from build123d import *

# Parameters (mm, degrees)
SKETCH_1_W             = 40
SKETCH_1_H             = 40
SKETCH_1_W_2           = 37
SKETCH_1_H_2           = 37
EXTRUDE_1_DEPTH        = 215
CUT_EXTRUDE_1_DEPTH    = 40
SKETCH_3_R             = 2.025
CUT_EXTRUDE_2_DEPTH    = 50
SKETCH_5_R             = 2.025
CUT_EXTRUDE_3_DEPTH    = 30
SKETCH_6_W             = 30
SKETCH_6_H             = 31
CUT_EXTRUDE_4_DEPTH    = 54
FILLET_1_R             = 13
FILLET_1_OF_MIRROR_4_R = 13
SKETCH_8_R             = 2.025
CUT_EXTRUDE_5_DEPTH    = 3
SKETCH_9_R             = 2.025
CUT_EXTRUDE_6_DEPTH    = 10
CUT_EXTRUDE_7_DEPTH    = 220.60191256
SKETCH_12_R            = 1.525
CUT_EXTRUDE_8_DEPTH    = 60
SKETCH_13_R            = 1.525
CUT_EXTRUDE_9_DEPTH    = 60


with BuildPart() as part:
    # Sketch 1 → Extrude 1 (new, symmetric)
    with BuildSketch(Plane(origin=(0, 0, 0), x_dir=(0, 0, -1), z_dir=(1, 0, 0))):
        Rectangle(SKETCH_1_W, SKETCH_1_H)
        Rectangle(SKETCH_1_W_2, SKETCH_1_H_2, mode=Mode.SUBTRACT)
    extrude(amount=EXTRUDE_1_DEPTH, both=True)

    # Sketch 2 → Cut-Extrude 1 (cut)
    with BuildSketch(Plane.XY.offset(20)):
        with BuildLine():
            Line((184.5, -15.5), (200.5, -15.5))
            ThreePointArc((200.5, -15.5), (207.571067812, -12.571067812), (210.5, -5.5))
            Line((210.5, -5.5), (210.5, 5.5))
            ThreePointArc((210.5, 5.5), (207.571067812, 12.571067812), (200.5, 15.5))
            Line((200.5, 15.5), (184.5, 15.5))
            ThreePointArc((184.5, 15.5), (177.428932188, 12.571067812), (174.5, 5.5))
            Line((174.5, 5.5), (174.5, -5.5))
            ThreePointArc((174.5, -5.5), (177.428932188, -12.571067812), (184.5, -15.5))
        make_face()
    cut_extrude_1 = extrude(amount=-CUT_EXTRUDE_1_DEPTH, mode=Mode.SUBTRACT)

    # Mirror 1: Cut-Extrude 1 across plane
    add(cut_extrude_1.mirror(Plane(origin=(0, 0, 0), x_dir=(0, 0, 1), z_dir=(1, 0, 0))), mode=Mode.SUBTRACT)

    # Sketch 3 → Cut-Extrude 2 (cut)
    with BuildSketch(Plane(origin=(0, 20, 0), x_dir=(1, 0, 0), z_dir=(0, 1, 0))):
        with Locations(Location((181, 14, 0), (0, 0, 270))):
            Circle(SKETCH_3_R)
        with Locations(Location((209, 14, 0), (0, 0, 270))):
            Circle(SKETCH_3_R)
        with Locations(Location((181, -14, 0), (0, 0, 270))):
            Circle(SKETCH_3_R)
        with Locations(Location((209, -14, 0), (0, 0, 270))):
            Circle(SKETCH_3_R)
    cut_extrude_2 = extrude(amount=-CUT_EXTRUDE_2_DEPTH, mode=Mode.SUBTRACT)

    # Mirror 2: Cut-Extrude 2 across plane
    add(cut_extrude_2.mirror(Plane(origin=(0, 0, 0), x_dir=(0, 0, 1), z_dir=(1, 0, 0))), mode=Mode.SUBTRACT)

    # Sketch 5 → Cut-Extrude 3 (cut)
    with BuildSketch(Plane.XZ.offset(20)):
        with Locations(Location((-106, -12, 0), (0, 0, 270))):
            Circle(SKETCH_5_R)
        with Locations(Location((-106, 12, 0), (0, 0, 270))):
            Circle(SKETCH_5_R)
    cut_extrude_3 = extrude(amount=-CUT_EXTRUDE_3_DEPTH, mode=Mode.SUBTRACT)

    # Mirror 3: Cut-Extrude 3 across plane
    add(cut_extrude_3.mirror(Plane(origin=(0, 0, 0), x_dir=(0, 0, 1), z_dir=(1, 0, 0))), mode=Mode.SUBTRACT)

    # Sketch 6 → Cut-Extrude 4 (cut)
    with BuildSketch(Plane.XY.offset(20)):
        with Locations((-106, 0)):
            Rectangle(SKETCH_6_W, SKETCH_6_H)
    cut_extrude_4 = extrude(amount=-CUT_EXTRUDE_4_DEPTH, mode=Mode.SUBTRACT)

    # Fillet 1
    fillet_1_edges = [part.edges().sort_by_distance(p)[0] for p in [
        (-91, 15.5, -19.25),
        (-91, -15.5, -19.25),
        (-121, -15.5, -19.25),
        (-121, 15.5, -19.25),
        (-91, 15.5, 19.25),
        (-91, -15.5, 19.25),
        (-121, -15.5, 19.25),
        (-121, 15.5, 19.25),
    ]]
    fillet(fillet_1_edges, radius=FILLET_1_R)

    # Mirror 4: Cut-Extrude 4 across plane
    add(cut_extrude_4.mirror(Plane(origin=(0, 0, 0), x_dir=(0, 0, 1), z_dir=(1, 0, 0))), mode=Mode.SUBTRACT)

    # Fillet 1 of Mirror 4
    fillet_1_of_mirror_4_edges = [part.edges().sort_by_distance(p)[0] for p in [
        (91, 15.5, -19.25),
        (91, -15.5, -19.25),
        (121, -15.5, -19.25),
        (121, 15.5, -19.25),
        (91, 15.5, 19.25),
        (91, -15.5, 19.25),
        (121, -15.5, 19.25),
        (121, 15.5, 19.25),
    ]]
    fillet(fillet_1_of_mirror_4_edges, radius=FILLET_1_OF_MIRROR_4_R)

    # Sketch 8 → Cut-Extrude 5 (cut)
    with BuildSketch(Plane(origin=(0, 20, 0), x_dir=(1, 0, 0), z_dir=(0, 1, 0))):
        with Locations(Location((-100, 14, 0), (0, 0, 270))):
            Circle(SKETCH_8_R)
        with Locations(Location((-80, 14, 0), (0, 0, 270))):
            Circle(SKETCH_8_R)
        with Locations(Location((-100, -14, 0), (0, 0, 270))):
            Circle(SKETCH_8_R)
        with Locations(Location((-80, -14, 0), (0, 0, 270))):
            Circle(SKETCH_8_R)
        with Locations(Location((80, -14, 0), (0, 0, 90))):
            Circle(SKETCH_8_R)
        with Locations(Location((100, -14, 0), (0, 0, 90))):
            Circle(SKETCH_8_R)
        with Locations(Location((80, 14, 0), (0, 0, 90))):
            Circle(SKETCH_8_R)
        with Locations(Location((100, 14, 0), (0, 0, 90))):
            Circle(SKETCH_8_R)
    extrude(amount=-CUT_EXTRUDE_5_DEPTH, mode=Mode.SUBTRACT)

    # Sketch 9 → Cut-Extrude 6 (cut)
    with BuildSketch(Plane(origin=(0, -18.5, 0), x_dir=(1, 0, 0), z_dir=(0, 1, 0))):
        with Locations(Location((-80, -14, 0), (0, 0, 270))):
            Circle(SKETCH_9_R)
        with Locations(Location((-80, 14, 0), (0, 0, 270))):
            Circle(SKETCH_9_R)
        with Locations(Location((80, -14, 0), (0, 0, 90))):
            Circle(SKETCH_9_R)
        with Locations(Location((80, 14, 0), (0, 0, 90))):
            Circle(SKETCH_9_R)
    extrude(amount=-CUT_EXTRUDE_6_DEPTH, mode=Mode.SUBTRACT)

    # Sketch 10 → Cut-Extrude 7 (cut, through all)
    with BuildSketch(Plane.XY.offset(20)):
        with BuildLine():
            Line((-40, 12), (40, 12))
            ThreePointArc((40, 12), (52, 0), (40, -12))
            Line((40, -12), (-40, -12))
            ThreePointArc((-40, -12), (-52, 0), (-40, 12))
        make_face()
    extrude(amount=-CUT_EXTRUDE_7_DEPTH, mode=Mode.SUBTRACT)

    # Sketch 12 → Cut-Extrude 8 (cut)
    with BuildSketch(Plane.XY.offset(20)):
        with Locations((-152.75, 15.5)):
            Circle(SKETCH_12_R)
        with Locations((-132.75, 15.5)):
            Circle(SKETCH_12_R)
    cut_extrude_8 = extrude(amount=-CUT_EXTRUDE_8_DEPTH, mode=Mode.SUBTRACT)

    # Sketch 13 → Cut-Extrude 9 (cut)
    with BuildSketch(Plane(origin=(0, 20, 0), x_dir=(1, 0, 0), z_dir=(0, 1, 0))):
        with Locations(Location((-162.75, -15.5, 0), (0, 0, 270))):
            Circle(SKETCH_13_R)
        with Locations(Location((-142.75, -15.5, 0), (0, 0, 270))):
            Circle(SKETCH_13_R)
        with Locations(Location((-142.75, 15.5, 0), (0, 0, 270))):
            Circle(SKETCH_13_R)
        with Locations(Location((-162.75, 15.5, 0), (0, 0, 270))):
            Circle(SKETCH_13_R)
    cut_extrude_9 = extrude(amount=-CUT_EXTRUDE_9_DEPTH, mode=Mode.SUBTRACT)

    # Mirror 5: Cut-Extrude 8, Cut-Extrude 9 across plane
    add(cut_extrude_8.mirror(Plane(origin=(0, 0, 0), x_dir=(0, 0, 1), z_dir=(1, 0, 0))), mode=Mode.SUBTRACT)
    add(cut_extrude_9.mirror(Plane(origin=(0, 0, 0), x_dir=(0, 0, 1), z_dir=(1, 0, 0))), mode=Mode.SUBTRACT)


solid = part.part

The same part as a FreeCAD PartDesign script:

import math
import FreeCAD as App
import Part
import Sketcher


def edges_at(feature, points):
    """Names of the edges that pass closest to the given points."""
    edges = feature.Shape.Edges
    near = lambda p: min(range(len(edges)), key=lambda i: edges[i].distToShape(Part.Vertex(*p))[0])
    return sorted({f"Edge{near(p) + 1}" for p in points})

doc = App.newDocument("Part")
body = doc.addObject("PartDesign::Body", "Body")

sketch1 = body.newObject("Sketcher::SketchObject", "Sketch")
sketch1.AttachmentSupport = (doc.getObject("YZ_Plane"), [""])
sketch1.MapMode = "FlatFace"
sketch1.addGeometry(Part.LineSegment(App.Vector(20, 20, 0), App.Vector(-20, 20, 0)), False)
sketch1.addGeometry(Part.LineSegment(App.Vector(-20, 20, 0), App.Vector(-20, -20, 0)), False)
sketch1.addGeometry(Part.LineSegment(App.Vector(-20, -20, 0), App.Vector(20, -20, 0)), False)
sketch1.addGeometry(Part.LineSegment(App.Vector(20, -20, 0), App.Vector(20, 20, 0)), False)
sketch1.addGeometry(Part.LineSegment(App.Vector(-18, -18, 0), App.Vector(-18, 18, 0)), False)
sketch1.addGeometry(Part.LineSegment(App.Vector(-18, 18, 0), App.Vector(18, 18, 0)), False)
sketch1.addGeometry(Part.LineSegment(App.Vector(18, 18, 0), App.Vector(18, -18, 0)), False)
sketch1.addGeometry(Part.LineSegment(App.Vector(18, -18, 0), App.Vector(-18, -18, 0)), False)
sketch1.addConstraint(Sketcher.Constraint("Coincident", 0, 2, 1, 1))
sketch1.addConstraint(Sketcher.Constraint("Coincident", 1, 2, 2, 1))
sketch1.addConstraint(Sketcher.Constraint("Coincident", 2, 2, 3, 1))
sketch1.addConstraint(Sketcher.Constraint("Coincident", 3, 2, 0, 1))
sketch1.addConstraint(Sketcher.Constraint("Coincident", 4, 2, 5, 1))
sketch1.addConstraint(Sketcher.Constraint("Coincident", 5, 2, 6, 1))
sketch1.addConstraint(Sketcher.Constraint("Coincident", 6, 2, 7, 1))
sketch1.addConstraint(Sketcher.Constraint("Coincident", 7, 2, 4, 1))
sketch1.addConstraint(Sketcher.Constraint("Horizontal", 0))
sketch1.addConstraint(Sketcher.Constraint("Vertical", 1))
sketch1.addConstraint(Sketcher.Constraint("Horizontal", 2))
sketch1.addConstraint(Sketcher.Constraint("Vertical", 3))
sketch1.addConstraint(Sketcher.Constraint("Vertical", 4))
sketch1.addConstraint(Sketcher.Constraint("Horizontal", 5))
sketch1.addConstraint(Sketcher.Constraint("Vertical", 6))
sketch1.addConstraint(Sketcher.Constraint("Horizontal", 7))
sketch1.addConstraint(Sketcher.Constraint("Symmetric", 0, 2, 2, 2, -1, 1))
sketch1.addConstraint(Sketcher.Constraint("Symmetric", 4, 2, 6, 2, -1, 1))
sketch1.addConstraint(Sketcher.Constraint("Equal", 2, 1))
sketch1.addConstraint(Sketcher.Constraint("Equal", 7, 4))
sketch1.addConstraint(Sketcher.Constraint("DistanceX", 0, 2, 0, 1, 40.0))
sketch1.addConstraint(Sketcher.Constraint("DistanceX", 5, 1, 5, 2, 37.0))
pad1 = body.newObject("PartDesign::Pad", "Pad")
pad1.Profile = sketch1
pad1.Length = 430
pad1.Midplane = True

sketch2 = body.newObject("Sketcher::SketchObject", "Sketch001")
sketch2.AttachmentSupport = (doc.getObject("XY_Plane"), [""])
sketch2.MapMode = "FlatFace"
sketch2.AttachmentOffset = App.Placement(App.Vector(0, 0, 20), App.Rotation())
sketch2.addGeometry(Part.LineSegment(App.Vector(184, -16, 0), App.Vector(200, -16, 0)), False)
sketch2.addGeometry(Part.ArcOfCircle(Part.Circle(App.Vector(200, -6, 0), App.Vector(0, 0, 1), 10), math.radians(-90), math.radians(0)), False)
sketch2.addGeometry(Part.LineSegment(App.Vector(210, -6, 0), App.Vector(210, 6, 0)), False)
sketch2.addGeometry(Part.ArcOfCircle(Part.Circle(App.Vector(200, 6, 0), App.Vector(0, 0, 1), 10), math.radians(0), math.radians(90)), False)
sketch2.addGeometry(Part.LineSegment(App.Vector(200, 16, 0), App.Vector(184, 16, 0)), False)
sketch2.addGeometry(Part.ArcOfCircle(Part.Circle(App.Vector(184, 6, 0), App.Vector(0, 0, 1), 10), math.radians(90), math.radians(180)), False)
sketch2.addGeometry(Part.LineSegment(App.Vector(174, 6, 0), App.Vector(174, -6, 0)), False)
sketch2.addGeometry(Part.ArcOfCircle(Part.Circle(App.Vector(184, -6, 0), App.Vector(0, 0, 1), 10), math.radians(180), math.radians(270)), False)
sketch2.addConstraint(Sketcher.Constraint("Tangent", 0, 2, 1, 1))
sketch2.addConstraint(Sketcher.Constraint("Tangent", 1, 2, 2, 1))
sketch2.addConstraint(Sketcher.Constraint("Tangent", 2, 2, 3, 1))
sketch2.addConstraint(Sketcher.Constraint("Tangent", 3, 2, 4, 1))
sketch2.addConstraint(Sketcher.Constraint("Tangent", 4, 2, 5, 1))
sketch2.addConstraint(Sketcher.Constraint("Tangent", 5, 2, 6, 1))
sketch2.addConstraint(Sketcher.Constraint("Tangent", 6, 2, 7, 1))
sketch2.addConstraint(Sketcher.Constraint("Tangent", 7, 2, 0, 1))
sketch2.addConstraint(Sketcher.Constraint("Horizontal", 0))
sketch2.addConstraint(Sketcher.Constraint("Vertical", 2))
sketch2.addConstraint(Sketcher.Constraint("Horizontal", 4))
sketch2.addConstraint(Sketcher.Constraint("Vertical", 6))
sketch2.addConstraint(Sketcher.Constraint("Equal", 1, 3))
sketch2.addConstraint(Sketcher.Constraint("Equal", 3, 5))
sketch2.addConstraint(Sketcher.Constraint("Equal", 5, 7))
sketch2.addConstraint(Sketcher.Constraint("Radius", 1, 10.0))
sketch2.addConstraint(Sketcher.Constraint("DistanceX", 0, 1, 0, 2, 16.0))
sketch2.addConstraint(Sketcher.Constraint("DistanceY", 2, 1, 2, 2, 11.0))
sketch2.addConstraint(Sketcher.Constraint("DistanceX", -1, 1, 1, 3, 200.5))
sketch2.addConstraint(Sketcher.Constraint("DistanceY", 1, 3, -1, 1, 5.5))
pocket1 = body.newObject("PartDesign::Pocket", "Pocket")
pocket1.Profile = sketch2
pocket1.Length = 40
doc.recompute()

mirrored = body.newObject("PartDesign::Mirrored", "Mirrored")
mirrored.Originals = [pocket1]
mirrored.MirrorPlane = (doc.getObject("YZ_Plane"), [""])
body.Tip = mirrored

sketch3 = body.newObject("Sketcher::SketchObject", "Sketch002")
sketch3.AttachmentSupport = (doc.getObject("XZ_Plane"), [""])
sketch3.MapMode = "FlatFace"
sketch3.AttachmentOffset = App.Placement(App.Vector(0, 0, -20), App.Rotation())
sketch3.addGeometry(Part.Circle(App.Vector(181, -14, 0), App.Vector(0, 0, 1), 2), False)
sketch3.addGeometry(Part.Circle(App.Vector(209, -14, 0), App.Vector(0, 0, 1), 2), False)
sketch3.addGeometry(Part.Circle(App.Vector(181, 14, 0), App.Vector(0, 0, 1), 2), False)
sketch3.addGeometry(Part.Circle(App.Vector(209, 14, 0), App.Vector(0, 0, 1), 2), False)
sketch3.addConstraint(Sketcher.Constraint("Equal", 0, 1))
sketch3.addConstraint(Sketcher.Constraint("Equal", 1, 2))
sketch3.addConstraint(Sketcher.Constraint("Equal", 2, 3))
sketch3.addConstraint(Sketcher.Constraint("Symmetric", 0, 3, 2, 3, -1))
sketch3.addConstraint(Sketcher.Constraint("Symmetric", 1, 3, 3, 3, -1))
sketch3.addConstraint(Sketcher.Constraint("Horizontal", 0, 3, 1, 3))
sketch3.addConstraint(Sketcher.Constraint("Diameter", 0, 4.05))
sketch3.addConstraint(Sketcher.Constraint("DistanceX", -1, 1, 0, 3, 181.0))
sketch3.addConstraint(Sketcher.Constraint("DistanceY", 0, 3, -1, 1, 14.0))
sketch3.addConstraint(Sketcher.Constraint("DistanceX", -1, 1, 1, 3, 209.0))
pocket2 = body.newObject("PartDesign::Pocket", "Pocket001")
pocket2.Profile = sketch3
pocket2.Length = 50
pocket2.Reversed = True
doc.recompute()

mirrored2 = body.newObject("PartDesign::Mirrored", "Mirrored001")
mirrored2.Originals = [pocket2]
mirrored2.MirrorPlane = (doc.getObject("YZ_Plane"), [""])
body.Tip = mirrored2

sketch4 = body.newObject("Sketcher::SketchObject", "Sketch003")
sketch4.AttachmentSupport = (doc.getObject("XZ_Plane"), [""])
sketch4.MapMode = "FlatFace"
sketch4.AttachmentOffset = App.Placement(App.Vector(0, 0, 20), App.Rotation())
sketch4.addGeometry(Part.Circle(App.Vector(-106, -12, 0), App.Vector(0, 0, 1), 2), False)
sketch4.addGeometry(Part.Circle(App.Vector(-106, 12, 0), App.Vector(0, 0, 1), 2), False)
sketch4.addConstraint(Sketcher.Constraint("Equal", 0, 1))
sketch4.addConstraint(Sketcher.Constraint("Symmetric", 0, 3, 1, 3, -1))
sketch4.addConstraint(Sketcher.Constraint("Diameter", 0, 4.05))
sketch4.addConstraint(Sketcher.Constraint("DistanceX", 0, 3, -1, 1, 106.0))
sketch4.addConstraint(Sketcher.Constraint("DistanceY", 0, 3, -1, 1, 12.0))
pocket3 = body.newObject("PartDesign::Pocket", "Pocket002")
pocket3.Profile = sketch4
pocket3.Length = 30
doc.recompute()

mirrored3 = body.newObject("PartDesign::Mirrored", "Mirrored002")
mirrored3.Originals = [pocket3]
mirrored3.MirrorPlane = (doc.getObject("YZ_Plane"), [""])
body.Tip = mirrored3

sketch5 = body.newObject("Sketcher::SketchObject", "Sketch004")
sketch5.AttachmentSupport = (doc.getObject("XY_Plane"), [""])
sketch5.MapMode = "FlatFace"
sketch5.AttachmentOffset = App.Placement(App.Vector(0, 0, 20), App.Rotation())
sketch5.addGeometry(Part.LineSegment(App.Vector(-121, 16, 0), App.Vector(-121, -16, 0)), False)
sketch5.addGeometry(Part.LineSegment(App.Vector(-121, -16, 0), App.Vector(-91, -16, 0)), False)
sketch5.addGeometry(Part.LineSegment(App.Vector(-91, -16, 0), App.Vector(-91, 16, 0)), False)
sketch5.addGeometry(Part.LineSegment(App.Vector(-91, 16, 0), App.Vector(-121, 16, 0)), False)
sketch5.addConstraint(Sketcher.Constraint("Coincident", 0, 2, 1, 1))
sketch5.addConstraint(Sketcher.Constraint("Coincident", 1, 2, 2, 1))
sketch5.addConstraint(Sketcher.Constraint("Coincident", 2, 2, 3, 1))
sketch5.addConstraint(Sketcher.Constraint("Coincident", 3, 2, 0, 1))
sketch5.addConstraint(Sketcher.Constraint("Vertical", 0))
sketch5.addConstraint(Sketcher.Constraint("Horizontal", 1))
sketch5.addConstraint(Sketcher.Constraint("Vertical", 2))
sketch5.addConstraint(Sketcher.Constraint("Horizontal", 3))
sketch5.addConstraint(Sketcher.Constraint("DistanceX", 1, 1, 1, 2, 30.0))
sketch5.addConstraint(Sketcher.Constraint("DistanceY", 0, 2, 0, 1, 31.0))
sketch5.addConstraint(Sketcher.Constraint("DistanceX", 0, 2, -1, 1, 121.0))
sketch5.addConstraint(Sketcher.Constraint("DistanceY", 0, 2, -1, 1, 15.5))
pocket4 = body.newObject("PartDesign::Pocket", "Pocket003")
pocket4.Profile = sketch5
pocket4.Length = 54
doc.recompute()

fillet = body.newObject("PartDesign::Fillet", "Fillet")
fillet.Base = (pocket4, edges_at(pocket4, [
    (-91, 15.5, -19.25),
    (-91, -15.5, -19.25),
    (-121, -15.5, -19.25),
    (-121, 15.5, -19.25),
    (-91, 15.5, 19.25),
    (-91, -15.5, 19.25),
    (-121, -15.5, 19.25),
    (-121, 15.5, 19.25),
]))
fillet.Radius = 13
doc.recompute()

mirrored4 = body.newObject("PartDesign::Mirrored", "Mirrored003")
mirrored4.Originals = [pocket4]
mirrored4.MirrorPlane = (doc.getObject("YZ_Plane"), [""])
body.Tip = mirrored4
doc.recompute()

fillet2 = body.newObject("PartDesign::Fillet", "Fillet001")
fillet2.Base = (mirrored4, edges_at(mirrored4, [
    (91, 15.5, -19.25),
    (91, -15.5, -19.25),
    (121, -15.5, -19.25),
    (121, 15.5, -19.25),
    (91, 15.5, 19.25),
    (91, -15.5, 19.25),
    (121, -15.5, 19.25),
    (121, 15.5, 19.25),
]))
fillet2.Radius = 13

sketch6 = body.newObject("Sketcher::SketchObject", "Sketch005")
sketch6.AttachmentSupport = (doc.getObject("XZ_Plane"), [""])
sketch6.MapMode = "FlatFace"
sketch6.AttachmentOffset = App.Placement(App.Vector(0, 0, -20), App.Rotation())
sketch6.addGeometry(Part.Circle(App.Vector(-100, -14, 0), App.Vector(0, 0, 1), 2), False)
sketch6.addGeometry(Part.Circle(App.Vector(-80, -14, 0), App.Vector(0, 0, 1), 2), False)
sketch6.addGeometry(Part.Circle(App.Vector(-100, 14, 0), App.Vector(0, 0, 1), 2), False)
sketch6.addGeometry(Part.Circle(App.Vector(-80, 14, 0), App.Vector(0, 0, 1), 2), False)
sketch6.addGeometry(Part.Circle(App.Vector(80, 14, 0), App.Vector(0, 0, 1), 2), False)
sketch6.addGeometry(Part.Circle(App.Vector(100, 14, 0), App.Vector(0, 0, 1), 2), False)
sketch6.addGeometry(Part.Circle(App.Vector(80, -14, 0), App.Vector(0, 0, 1), 2), False)
sketch6.addGeometry(Part.Circle(App.Vector(100, -14, 0), App.Vector(0, 0, 1), 2), False)
sketch6.addConstraint(Sketcher.Constraint("Equal", 0, 1))
sketch6.addConstraint(Sketcher.Constraint("Equal", 1, 2))
sketch6.addConstraint(Sketcher.Constraint("Equal", 2, 3))
sketch6.addConstraint(Sketcher.Constraint("Equal", 3, 4))
sketch6.addConstraint(Sketcher.Constraint("Equal", 4, 5))
sketch6.addConstraint(Sketcher.Constraint("Equal", 5, 6))
sketch6.addConstraint(Sketcher.Constraint("Equal", 6, 7))
sketch6.addConstraint(Sketcher.Constraint("Symmetric", 1, 3, 4, 3, -1, 1))
sketch6.addConstraint(Sketcher.Constraint("Symmetric", 0, 3, 5, 3, -1, 1))
sketch6.addConstraint(Sketcher.Constraint("Symmetric", 3, 3, 6, 3, -1, 1))
sketch6.addConstraint(Sketcher.Constraint("Symmetric", 2, 3, 7, 3, -1, 1))
sketch6.addConstraint(Sketcher.Constraint("Symmetric", 3, 3, 4, 3, -2))
sketch6.addConstraint(Sketcher.Constraint("Symmetric", 2, 3, 5, 3, -2))
sketch6.addConstraint(Sketcher.Constraint("Horizontal", 0, 3, 1, 3))
sketch6.addConstraint(Sketcher.Constraint("Diameter", 0, 4.05))
sketch6.addConstraint(Sketcher.Constraint("DistanceX", 0, 3, -1, 1, 100.0))
sketch6.addConstraint(Sketcher.Constraint("DistanceY", 0, 3, -1, 1, 14.0))
sketch6.addConstraint(Sketcher.Constraint("DistanceX", 1, 3, -1, 1, 80.0))
pocket5 = body.newObject("PartDesign::Pocket", "Pocket004")
pocket5.Profile = sketch6
pocket5.Length = 3
pocket5.Reversed = True

sketch7 = body.newObject("Sketcher::SketchObject", "Sketch006")
sketch7.AttachmentSupport = (doc.getObject("XZ_Plane"), [""])
sketch7.MapMode = "FlatFace"
sketch7.AttachmentOffset = App.Placement(App.Vector(0, 0, 18.5), App.Rotation())
sketch7.addGeometry(Part.Circle(App.Vector(-80, 14, 0), App.Vector(0, 0, 1), 2), False)
sketch7.addGeometry(Part.Circle(App.Vector(-80, -14, 0), App.Vector(0, 0, 1), 2), False)
sketch7.addGeometry(Part.Circle(App.Vector(80, 14, 0), App.Vector(0, 0, 1), 2), False)
sketch7.addGeometry(Part.Circle(App.Vector(80, -14, 0), App.Vector(0, 0, 1), 2), False)
sketch7.addConstraint(Sketcher.Constraint("Equal", 0, 1))
sketch7.addConstraint(Sketcher.Constraint("Equal", 1, 2))
sketch7.addConstraint(Sketcher.Constraint("Equal", 2, 3))
sketch7.addConstraint(Sketcher.Constraint("Symmetric", 1, 3, 2, 3, -1, 1))
sketch7.addConstraint(Sketcher.Constraint("Symmetric", 0, 3, 3, 3, -1, 1))
sketch7.addConstraint(Sketcher.Constraint("Symmetric", 0, 3, 2, 3, -2))
sketch7.addConstraint(Sketcher.Constraint("Diameter", 0, 4.05))
sketch7.addConstraint(Sketcher.Constraint("DistanceX", 0, 3, -1, 1, 80.0))
sketch7.addConstraint(Sketcher.Constraint("DistanceY", -1, 1, 0, 3, 14.0))
pocket6 = body.newObject("PartDesign::Pocket", "Pocket005")
pocket6.Profile = sketch7
pocket6.Length = 10
pocket6.Reversed = True

sketch8 = body.newObject("Sketcher::SketchObject", "Sketch007")
sketch8.AttachmentSupport = (doc.getObject("XY_Plane"), [""])
sketch8.MapMode = "FlatFace"
sketch8.AttachmentOffset = App.Placement(App.Vector(0, 0, 20), App.Rotation())
sketch8.addGeometry(Part.LineSegment(App.Vector(40, 12, 0), App.Vector(-40, 12, 0)), False)
sketch8.addGeometry(Part.ArcOfCircle(Part.Circle(App.Vector(-40, 0, 0), App.Vector(0, 0, 1), 12), math.radians(90), math.radians(270)), False)
sketch8.addGeometry(Part.LineSegment(App.Vector(-40, -12, 0), App.Vector(40, -12, 0)), False)
sketch8.addGeometry(Part.ArcOfCircle(Part.Circle(App.Vector(40, 0, 0), App.Vector(0, 0, 1), 12), math.radians(-90), math.radians(90)), False)
sketch8.addConstraint(Sketcher.Constraint("Tangent", 0, 2, 1, 1))
sketch8.addConstraint(Sketcher.Constraint("Tangent", 1, 2, 2, 1))
sketch8.addConstraint(Sketcher.Constraint("Tangent", 2, 2, 3, 1))
sketch8.addConstraint(Sketcher.Constraint("Tangent", 3, 2, 0, 1))
sketch8.addConstraint(Sketcher.Constraint("Horizontal", 0))
sketch8.addConstraint(Sketcher.Constraint("Horizontal", 2))
sketch8.addConstraint(Sketcher.Constraint("Symmetric", 1, 3, 3, 3, -1, 1))
sketch8.addConstraint(Sketcher.Constraint("Radius", 1, 12.0))
sketch8.addConstraint(Sketcher.Constraint("DistanceX", 0, 2, 0, 1, 80.0))
pocket7 = body.newObject("PartDesign::Pocket", "Pocket006")
pocket7.Profile = sketch8
pocket7.Type = "ThroughAll"

sketch9 = body.newObject("Sketcher::SketchObject", "Sketch008")
sketch9.AttachmentSupport = (doc.getObject("XY_Plane"), [""])
sketch9.MapMode = "FlatFace"
sketch9.AttachmentOffset = App.Placement(App.Vector(0, 0, 20), App.Rotation())
sketch9.addGeometry(Part.Circle(App.Vector(-152.8, 15.5, 0), App.Vector(0, 0, 1), 1.5), False)
sketch9.addGeometry(Part.Circle(App.Vector(-132.8, 15.5, 0), App.Vector(0, 0, 1), 1.5), False)
sketch9.addConstraint(Sketcher.Constraint("Equal", 0, 1))
sketch9.addConstraint(Sketcher.Constraint("Horizontal", 0, 3, 1, 3))
sketch9.addConstraint(Sketcher.Constraint("Diameter", 0, 3.05))
sketch9.addConstraint(Sketcher.Constraint("DistanceX", 0, 3, 1, 3, 20.0))
sketch9.addConstraint(Sketcher.Constraint("DistanceY", -1, 1, 0, 3, 15.5))
sketch9.addConstraint(Sketcher.Constraint("DistanceX", 0, 3, -1, 1, 152.75))
pocket8 = body.newObject("PartDesign::Pocket", "Pocket007")
pocket8.Profile = sketch9
pocket8.Length = 60

sketch10 = body.newObject("Sketcher::SketchObject", "Sketch009")
sketch10.AttachmentSupport = (doc.getObject("XZ_Plane"), [""])
sketch10.MapMode = "FlatFace"
sketch10.AttachmentOffset = App.Placement(App.Vector(0, 0, -20), App.Rotation())
sketch10.addGeometry(Part.Circle(App.Vector(-162.8, 15.5, 0), App.Vector(0, 0, 1), 1.5), False)
sketch10.addGeometry(Part.Circle(App.Vector(-142.8, 15.5, 0), App.Vector(0, 0, 1), 1.5), False)
sketch10.addGeometry(Part.Circle(App.Vector(-142.8, -15.5, 0), App.Vector(0, 0, 1), 1.5), False)
sketch10.addGeometry(Part.Circle(App.Vector(-162.8, -15.5, 0), App.Vector(0, 0, 1), 1.5), False)
sketch10.addConstraint(Sketcher.Constraint("Equal", 0, 1))
sketch10.addConstraint(Sketcher.Constraint("Equal", 1, 2))
sketch10.addConstraint(Sketcher.Constraint("Equal", 2, 3))
sketch10.addConstraint(Sketcher.Constraint("Symmetric", 1, 3, 2, 3, -1))
sketch10.addConstraint(Sketcher.Constraint("Symmetric", 0, 3, 3, 3, -1))
sketch10.addConstraint(Sketcher.Constraint("Horizontal", 0, 3, 1, 3))
sketch10.addConstraint(Sketcher.Constraint("Diameter", 0, 3.05))
sketch10.addConstraint(Sketcher.Constraint("DistanceX", 0, 3, 1, 3, 20.0))
sketch10.addConstraint(Sketcher.Constraint("DistanceY", 2, 3, 1, 3, 31.0))
sketch10.addConstraint(Sketcher.Constraint("DistanceX", 0, 3, -1, 1, 162.75))
pocket9 = body.newObject("PartDesign::Pocket", "Pocket008")
pocket9.Profile = sketch10
pocket9.Length = 60
pocket9.Reversed = True
doc.recompute()

mirrored5 = body.newObject("PartDesign::Mirrored", "Mirrored004")
mirrored5.Originals = [pocket8, pocket9]
mirrored5.MirrorPlane = (doc.getObject("YZ_Plane"), [""])
body.Tip = mirrored5

doc.recompute()
